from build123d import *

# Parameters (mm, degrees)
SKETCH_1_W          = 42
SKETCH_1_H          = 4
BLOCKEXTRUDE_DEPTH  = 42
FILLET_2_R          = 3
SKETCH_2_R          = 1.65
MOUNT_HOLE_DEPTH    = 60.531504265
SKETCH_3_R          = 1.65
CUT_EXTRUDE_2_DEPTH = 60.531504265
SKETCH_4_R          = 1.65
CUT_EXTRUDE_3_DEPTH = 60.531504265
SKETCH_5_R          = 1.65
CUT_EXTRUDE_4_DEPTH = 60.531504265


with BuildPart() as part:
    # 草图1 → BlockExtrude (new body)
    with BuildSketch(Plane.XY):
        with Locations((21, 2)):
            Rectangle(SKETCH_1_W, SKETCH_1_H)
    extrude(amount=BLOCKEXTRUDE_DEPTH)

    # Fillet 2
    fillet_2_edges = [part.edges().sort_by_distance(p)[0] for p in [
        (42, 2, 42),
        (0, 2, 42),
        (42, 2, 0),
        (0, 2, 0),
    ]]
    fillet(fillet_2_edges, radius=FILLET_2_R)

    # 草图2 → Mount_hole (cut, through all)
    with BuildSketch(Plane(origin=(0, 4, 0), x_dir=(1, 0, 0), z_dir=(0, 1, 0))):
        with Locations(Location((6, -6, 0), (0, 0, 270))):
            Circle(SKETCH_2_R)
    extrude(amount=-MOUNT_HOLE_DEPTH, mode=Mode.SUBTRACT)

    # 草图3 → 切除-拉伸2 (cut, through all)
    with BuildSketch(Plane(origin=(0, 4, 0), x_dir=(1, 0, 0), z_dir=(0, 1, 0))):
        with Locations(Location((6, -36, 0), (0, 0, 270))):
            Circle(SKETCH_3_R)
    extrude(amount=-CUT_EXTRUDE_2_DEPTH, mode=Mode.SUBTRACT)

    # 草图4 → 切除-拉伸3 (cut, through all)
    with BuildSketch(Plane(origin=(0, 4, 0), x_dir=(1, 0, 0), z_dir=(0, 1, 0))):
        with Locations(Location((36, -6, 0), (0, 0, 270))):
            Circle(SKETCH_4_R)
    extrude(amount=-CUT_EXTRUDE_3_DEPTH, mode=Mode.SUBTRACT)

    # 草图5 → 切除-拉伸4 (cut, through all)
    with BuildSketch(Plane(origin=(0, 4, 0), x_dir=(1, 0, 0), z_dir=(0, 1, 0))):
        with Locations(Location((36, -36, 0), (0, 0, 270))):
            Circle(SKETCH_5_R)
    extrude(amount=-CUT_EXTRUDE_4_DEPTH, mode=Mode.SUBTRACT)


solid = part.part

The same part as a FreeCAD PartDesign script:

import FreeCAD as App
import Part
import Sketcher

V = App.Vector
Q = App.Units.Quantity


def edges_at(feature, points):
    """Names of the edges that pass closest to the given points."""
    edges = feature.Shape.Edges
    near = lambda p: min(range(len(edges)), key=lambda i: edges[i].distToShape(Part.Vertex(*p))[0])
    return sorted({f"Edge{near(p) + 1}" for p in points})

doc = App.newDocument("Part")
body = doc.addObject("PartDesign::Body", "Body")

# Sketch on XY plane
sketch1 = body.newObject("Sketcher::SketchObject", "Sketch")
sketch1.AttachmentSupport = (doc.getObject("XY_Plane"), [""])
sketch1.MapMode = "FlatFace"
sketch1.addGeometry(Part.LineSegment(V(0, 4, 0), V(0, 0, 0)), False)
sketch1.addGeometry(Part.LineSegment(V(0, 0, 0), V(42, 0, 0)), False)
sketch1.addGeometry(Part.LineSegment(V(42, 0, 0), V(42, 4, 0)), False)
sketch1.addGeometry(Part.LineSegment(V(42, 4, 0), V(0, 4, 0)), False)
sketch1.addConstraint(Sketcher.Constraint("Coincident", 0, 2, 1, 1))
sketch1.addConstraint(Sketcher.Constraint("Coincident", 1, 2, 2, 1))
sketch1.addConstraint(Sketcher.Constraint("Coincident", 2, 2, 3, 1))
sketch1.addConstraint(Sketcher.Constraint("Coincident", 3, 2, 0, 1))
sketch1.addConstraint(Sketcher.Constraint("Vertical", 0))
sketch1.addConstraint(Sketcher.Constraint("Horizontal", 1))
sketch1.addConstraint(Sketcher.Constraint("Vertical", 2))
sketch1.addConstraint(Sketcher.Constraint("Horizontal", 3))
sketch1.addConstraint(Sketcher.Constraint("Coincident", 0, 2, -1, 1))
sketch1.addConstraint(Sketcher.Constraint("DistanceX", 1, 1, 1, 2, Q("42 mm")))
sketch1.addConstraint(Sketcher.Constraint("DistanceY", 0, 2, 0, 1, Q("4 mm")))
pad1 = body.newObject("PartDesign::Pad", "Pad")
pad1.Profile = sketch1
pad1.Length = 42
doc.recompute()

fillet = body.newObject("PartDesign::Fillet", "Fillet")
fillet.Base = (pad1, edges_at(pad1, [
    (42, 2, 42),
    (0, 2, 42),
    (42, 2, 0),
    (0, 2, 0),
]))
fillet.Radius = 3

# Sketch on XZ plane
sketch2 = body.newObject("Sketcher::SketchObject", "Sketch001")
sketch2.AttachmentSupport = (doc.getObject("XZ_Plane"), [""])
sketch2.MapMode = "FlatFace"
sketch2.AttachmentOffset = App.Placement(V(0, 0, -4), App.Rotation())
sketch2.addGeometry(Part.Circle(V(6, 6, 0), V(0, 0, 1), 1.6), False)
sketch2.addConstraint(Sketcher.Constraint("Diameter", 0, Q("3.3 mm")))
sketch2.addConstraint(Sketcher.Constraint("DistanceX", -1, 1, 0, 3, Q("6 mm")))
sketch2.addConstraint(Sketcher.Constraint("DistanceY", -1, 1, 0, 3, Q("6 mm")))
pocket1 = body.newObject("PartDesign::Pocket", "Pocket")
pocket1.Profile = sketch2
pocket1.Type = "ThroughAll"
pocket1.Reversed = True

# Sketch on XZ plane
sketch3 = body.newObject("Sketcher::SketchObject", "Sketch002")
sketch3.AttachmentSupport = (doc.getObject("XZ_Plane"), [""])
sketch3.MapMode = "FlatFace"
sketch3.AttachmentOffset = App.Placement(V(0, 0, -4), App.Rotation())
sketch3.addGeometry(Part.Circle(V(6, 36, 0), V(0, 0, 1), 1.6), False)
sketch3.addConstraint(Sketcher.Constraint("Diameter", 0, Q("3.3 mm")))
sketch3.addConstraint(Sketcher.Constraint("DistanceX", -1, 1, 0, 3, Q("6 mm")))
sketch3.addConstraint(Sketcher.Constraint("DistanceY", -1, 1, 0, 3, Q("36 mm")))
pocket2 = body.newObject("PartDesign::Pocket", "Pocket001")
pocket2.Profile = sketch3
pocket2.Type = "ThroughAll"
pocket2.Reversed = True

# Sketch on XZ plane
sketch4 = body.newObject("Sketcher::SketchObject", "Sketch003")
sketch4.AttachmentSupport = (doc.getObject("XZ_Plane"), [""])
sketch4.MapMode = "FlatFace"
sketch4.AttachmentOffset = App.Placement(V(0, 0, -4), App.Rotation())
sketch4.addGeometry(Part.Circle(V(36, 6, 0), V(0, 0, 1), 1.6), False)
sketch4.addConstraint(Sketcher.Constraint("Diameter", 0, Q("3.3 mm")))
sketch4.addConstraint(Sketcher.Constraint("DistanceX", -1, 1, 0, 3, Q("36 mm")))
sketch4.addConstraint(Sketcher.Constraint("DistanceY", -1, 1, 0, 3, Q("6 mm")))
pocket3 = body.newObject("PartDesign::Pocket", "Pocket002")
pocket3.Profile = sketch4
pocket3.Type = "ThroughAll"
pocket3.Reversed = True

# Sketch on XZ plane
sketch5 = body.newObject("Sketcher::SketchObject", "Sketch004")
sketch5.AttachmentSupport = (doc.getObject("XZ_Plane"), [""])
sketch5.MapMode = "FlatFace"
sketch5.AttachmentOffset = App.Placement(V(0, 0, -4), App.Rotation())
sketch5.addGeometry(Part.Circle(V(36, 36, 0), V(0, 0, 1), 1.6), False)
sketch5.addConstraint(Sketcher.Constraint("Diameter", 0, Q("3.3 mm")))
sketch5.addConstraint(Sketcher.Constraint("DistanceX", -1, 1, 0, 3, Q("36 mm")))
sketch5.addConstraint(Sketcher.Constraint("DistanceY", -1, 1, 0, 3, Q("36 mm")))
pocket4 = body.newObject("PartDesign::Pocket", "Pocket003")
pocket4.Profile = sketch5
pocket4.Type = "ThroughAll"
pocket4.Reversed = True

doc.recompute()
